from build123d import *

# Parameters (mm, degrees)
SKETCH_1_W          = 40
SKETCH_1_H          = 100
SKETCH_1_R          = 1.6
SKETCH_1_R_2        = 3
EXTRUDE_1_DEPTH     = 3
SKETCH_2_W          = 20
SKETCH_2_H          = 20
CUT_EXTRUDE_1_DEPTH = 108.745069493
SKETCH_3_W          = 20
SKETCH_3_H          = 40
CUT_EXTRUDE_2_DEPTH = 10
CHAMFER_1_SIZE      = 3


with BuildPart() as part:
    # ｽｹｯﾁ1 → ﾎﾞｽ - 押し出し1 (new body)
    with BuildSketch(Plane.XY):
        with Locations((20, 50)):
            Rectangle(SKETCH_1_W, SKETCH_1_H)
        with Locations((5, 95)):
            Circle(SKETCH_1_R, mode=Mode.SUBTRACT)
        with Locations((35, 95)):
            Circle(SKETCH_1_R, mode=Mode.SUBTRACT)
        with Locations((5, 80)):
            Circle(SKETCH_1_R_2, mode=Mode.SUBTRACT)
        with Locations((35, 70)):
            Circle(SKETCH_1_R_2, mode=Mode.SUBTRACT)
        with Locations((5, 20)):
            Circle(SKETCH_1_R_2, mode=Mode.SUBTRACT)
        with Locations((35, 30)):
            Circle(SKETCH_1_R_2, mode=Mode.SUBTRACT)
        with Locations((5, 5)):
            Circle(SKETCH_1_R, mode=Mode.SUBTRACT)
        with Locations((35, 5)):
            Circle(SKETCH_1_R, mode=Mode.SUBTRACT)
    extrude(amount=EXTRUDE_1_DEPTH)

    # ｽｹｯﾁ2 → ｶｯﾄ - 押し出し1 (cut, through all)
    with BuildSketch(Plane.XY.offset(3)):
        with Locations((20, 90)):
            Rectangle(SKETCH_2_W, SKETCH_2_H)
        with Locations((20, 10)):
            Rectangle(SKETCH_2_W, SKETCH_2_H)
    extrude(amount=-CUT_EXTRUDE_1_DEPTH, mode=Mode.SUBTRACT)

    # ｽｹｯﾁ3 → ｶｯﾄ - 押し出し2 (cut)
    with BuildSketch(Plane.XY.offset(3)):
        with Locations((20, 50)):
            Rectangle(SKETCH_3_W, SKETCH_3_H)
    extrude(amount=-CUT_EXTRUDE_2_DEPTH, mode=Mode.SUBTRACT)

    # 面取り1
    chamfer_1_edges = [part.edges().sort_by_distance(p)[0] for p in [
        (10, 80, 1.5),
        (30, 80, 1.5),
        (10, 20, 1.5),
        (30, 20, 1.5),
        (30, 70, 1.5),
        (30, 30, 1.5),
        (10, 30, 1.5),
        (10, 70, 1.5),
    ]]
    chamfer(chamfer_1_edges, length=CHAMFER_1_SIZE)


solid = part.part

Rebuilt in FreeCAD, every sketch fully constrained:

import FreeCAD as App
import Part
import Sketcher

V = App.Vector


def edges_at(feature, points):
    """Names of the edges that pass closest to the given points."""
    edges = feature.Shape.Edges
    near = lambda p: min(range(len(edges)), key=lambda i: edges[i].distToShape(Part.Vertex(*p))[0])
    return sorted({f"Edge{near(p) + 1}" for p in points})

doc = App.newDocument("Part")
body = doc.addObject("PartDesign::Body", "Body")

sketch1 = doc.addObject("Sketcher::SketchObject", "Sketch")
body.addObject(sketch1)
sketch1.AttachmentSupport = (doc.XY_Plane, [""])
sketch1.MapMode = "FlatFace"
sketch1.addGeometry([
    Part.LineSegment(V(0, 100, 0), V(0, 0, 0)),
    Part.LineSegment(V(0, 0, 0), V(40, 0, 0)),
    Part.LineSegment(V(40, 0, 0), V(40, 100, 0)),
    Part.LineSegment(V(40, 100, 0), V(0, 100, 0)),
    Part.Circle(V(5, 5, 0), V(0, 0, 1), 1.6),
    Part.Circle(V(5, 20, 0), V(0, 0, 1), 3),
    Part.Circle(V(35, 5, 0), V(0, 0, 1), 1.6),
    Part.Circle(V(35, 30, 0), V(0, 0, 1), 3),
    Part.Circle(V(5, 80, 0), V(0, 0, 1), 3),
    Part.Circle(V(5, 95, 0), V(0, 0, 1), 1.6),
    Part.Circle(V(35, 70, 0), V(0, 0, 1), 3),
    Part.Circle(V(35, 95, 0), V(0, 0, 1), 1.6),
], False)
sketch1.addConstraint([
    Sketcher.Constraint("Coincident", 0, 2, 1, 1),
    Sketcher.Constraint("Coincident", 1, 2, 2, 1),
    Sketcher.Constraint("Coincident", 2, 2, 3, 1),
    Sketcher.Constraint("Coincident", 3, 2, 0, 1),
    Sketcher.Constraint("Vertical", 0),
    Sketcher.Constraint("Horizontal", 1),
    Sketcher.Constraint("Vertical", 2),
    Sketcher.Constraint("Horizontal", 3),
    Sketcher.Constraint("Coincident", 0, 2, -1, 1),
    Sketcher.Constraint("Equal", 4, 6),
    Sketcher.Constraint("Equal", 5, 7),
    Sketcher.Constraint("Equal", 7, 8),
    Sketcher.Constraint("Equal", 6, 9),
    Sketcher.Constraint("Equal", 8, 10),
    Sketcher.Constraint("Equal", 9, 11),
    Sketcher.Constraint("Horizontal", 4, 3, 6, 3),
    Sketcher.Constraint("Horizontal", 9, 3, 11, 3),
    Sketcher.Constraint("Vertical", 4, 3, 5, 3),
    Sketcher.Constraint("Vertical", 6, 3, 7, 3),
    Sketcher.Constraint("Vertical", 5, 3, 8, 3),
    Sketcher.Constraint("Vertical", 8, 3, 9, 3),
    Sketcher.Constraint("Vertical", 7, 3, 10, 3),
    Sketcher.Constraint("Vertical", 10, 3, 11, 3),
    Sketcher.Constraint("Diameter", 5, 6.0),
    Sketcher.Constraint("Diameter", 4, 3.2),
    Sketcher.Constraint("DistanceX", 1, 1, 1, 2, 40.0),
    Sketcher.Constraint("DistanceY", 0, 2, 0, 1, 100.0),
    Sketcher.Constraint("DistanceX", -1, 1, 4, 3, 5.0),
    Sketcher.Constraint("DistanceY", -1, 1, 4, 3, 5.0),
    Sketcher.Constraint("DistanceY", -1, 1, 5, 3, 20.0),
    Sketcher.Constraint("DistanceX", -1, 1, 6, 3, 35.0),
    Sketcher.Constraint("DistanceY", -1, 1, 7, 3, 30.0),
    Sketcher.Constraint("DistanceY", -1, 1, 8, 3, 80.0),
    Sketcher.Constraint("DistanceY", -1, 1, 9, 3, 95.0),
    Sketcher.Constraint("DistanceY", -1, 1, 10, 3, 70.0),
])
pad1 = doc.addObject("PartDesign::Pad", "Pad")
body.addObject(pad1)
pad1.Profile = sketch1
pad1.Length = 3

sketch2 = doc.addObject("Sketcher::SketchObject", "Sketch001")
body.addObject(sketch2)
sketch2.AttachmentSupport = (doc.XY_Plane, [""])
sketch2.MapMode = "FlatFace"
sketch2.AttachmentOffset = App.Placement(V(0, 0, 3), App.Rotation())
sketch2.addGeometry([
    Part.LineSegment(V(10, 100, 0), V(10, 80, 0)),
    Part.LineSegment(V(10, 80, 0), V(30, 80, 0)),
    Part.LineSegment(V(30, 80, 0), V(30, 100, 0)),
    Part.LineSegment(V(30, 100, 0), V(10, 100, 0)),
    Part.LineSegment(V(10, 20, 0), V(10, 0, 0)),
    Part.LineSegment(V(10, 0, 0), V(30, 0, 0)),
    Part.LineSegment(V(30, 0, 0), V(30, 20, 0)),
    Part.LineSegment(V(30, 20, 0), V(10, 20, 0)),
], False)
sketch2.addConstraint([
    Sketcher.Constraint("Coincident", 0, 2, 1, 1),
    Sketcher.Constraint("Coincident", 1, 2, 2, 1),
    Sketcher.Constraint("Coincident", 2, 2, 3, 1),
    Sketcher.Constraint("Coincident", 3, 2, 0, 1),
    Sketcher.Constraint("Coincident", 4, 2, 5, 1),
    Sketcher.Constraint("Coincident", 5, 2, 6, 1),
    Sketcher.Constraint("Coincident", 6, 2, 7, 1),
    Sketcher.Constraint("Coincident", 7, 2, 4, 1),
    Sketcher.Constraint("Vertical", 0),
    Sketcher.Constraint("Horizontal", 1),
    Sketcher.Constraint("Vertical", 2),
    Sketcher.Constraint("Horizontal", 3),
    Sketcher.Constraint("Vertical", 4),
    Sketcher.Constraint("Horizontal", 5),
    Sketcher.Constraint("Vertical", 6),
    Sketcher.Constraint("Horizontal", 7),
    Sketcher.Constraint("PointOnObject", 4, 2, -1),
    Sketcher.Constraint("Vertical", 3, 2, 4, 2),
    Sketcher.Constraint("Vertical", 2, 2, 5, 2),
    Sketcher.Constraint("Equal", 7, 0),
    Sketcher.Constraint("Equal", 2, 4),
    Sketcher.Constraint("DistanceX", 1, 1, 1, 2, 20.0),
    Sketcher.Constraint("DistanceX", -1, 1, 0, 2, 10.0),
    Sketcher.Constraint("DistanceY", -1, 1, 0, 2, 80.0),
])
pocket1 = doc.addObject("PartDesign::Pocket", "Pocket")
body.addObject(pocket1)
pocket1.Profile = sketch2
pocket1.Type = "ThroughAll"

sketch3 = doc.addObject("Sketcher::SketchObject", "Sketch002")
body.addObject(sketch3)
sketch3.AttachmentSupport = (doc.XY_Plane, [""])
sketch3.MapMode = "FlatFace"
sketch3.AttachmentOffset = App.Placement(V(0, 0, 3), App.Rotation())
sketch3.addGeometry([
    Part.LineSegment(V(10, 70, 0), V(10, 30, 0)),
    Part.LineSegment(V(10, 30, 0), V(30, 30, 0)),
    Part.LineSegment(V(30, 30, 0), V(30, 70, 0)),
    Part.LineSegment(V(30, 70, 0), V(10, 70, 0)),
], False)
sketch3.addConstraint([
    Sketcher.Constraint("Coincident", 0, 2, 1, 1),
    Sketcher.Constraint("Coincident", 1, 2, 2, 1),
    Sketcher.Constraint("Coincident", 2, 2, 3, 1),
    Sketcher.Constraint("Coincident", 3, 2, 0, 1),
    Sketcher.Constraint("Vertical", 0),
    Sketcher.Constraint("Horizontal", 1),
    Sketcher.Constraint("Vertical", 2),
    Sketcher.Constraint("Horizontal", 3),
    Sketcher.Constraint("DistanceX", 1, 1, 1, 2, 20.0),
    Sketcher.Constraint("DistanceY", 0, 2, 0, 1, 40.0),
    Sketcher.Constraint("DistanceX", -1, 1, 0, 2, 10.0),
    Sketcher.Constraint("DistanceY", -1, 1, 0, 2, 30.0),
])
pocket2 = doc.addObject("PartDesign::Pocket", "Pocket001")
body.addObject(pocket2)
pocket2.Profile = sketch3
pocket2.Length = 10
doc.recompute()

chamfer = doc.addObject("PartDesign::Chamfer", "Chamfer")
body.addObject(chamfer)
chamfer.Base = (pocket2, edges_at(pocket2, [
    (10, 80, 1.5),
    (30, 80, 1.5),
    (10, 20, 1.5),
    (30, 20, 1.5),
    (30, 70, 1.5),
    (30, 30, 1.5),
    (10, 30, 1.5),
    (10, 70, 1.5),
]))
chamfer.Size = 3

doc.recompute()
